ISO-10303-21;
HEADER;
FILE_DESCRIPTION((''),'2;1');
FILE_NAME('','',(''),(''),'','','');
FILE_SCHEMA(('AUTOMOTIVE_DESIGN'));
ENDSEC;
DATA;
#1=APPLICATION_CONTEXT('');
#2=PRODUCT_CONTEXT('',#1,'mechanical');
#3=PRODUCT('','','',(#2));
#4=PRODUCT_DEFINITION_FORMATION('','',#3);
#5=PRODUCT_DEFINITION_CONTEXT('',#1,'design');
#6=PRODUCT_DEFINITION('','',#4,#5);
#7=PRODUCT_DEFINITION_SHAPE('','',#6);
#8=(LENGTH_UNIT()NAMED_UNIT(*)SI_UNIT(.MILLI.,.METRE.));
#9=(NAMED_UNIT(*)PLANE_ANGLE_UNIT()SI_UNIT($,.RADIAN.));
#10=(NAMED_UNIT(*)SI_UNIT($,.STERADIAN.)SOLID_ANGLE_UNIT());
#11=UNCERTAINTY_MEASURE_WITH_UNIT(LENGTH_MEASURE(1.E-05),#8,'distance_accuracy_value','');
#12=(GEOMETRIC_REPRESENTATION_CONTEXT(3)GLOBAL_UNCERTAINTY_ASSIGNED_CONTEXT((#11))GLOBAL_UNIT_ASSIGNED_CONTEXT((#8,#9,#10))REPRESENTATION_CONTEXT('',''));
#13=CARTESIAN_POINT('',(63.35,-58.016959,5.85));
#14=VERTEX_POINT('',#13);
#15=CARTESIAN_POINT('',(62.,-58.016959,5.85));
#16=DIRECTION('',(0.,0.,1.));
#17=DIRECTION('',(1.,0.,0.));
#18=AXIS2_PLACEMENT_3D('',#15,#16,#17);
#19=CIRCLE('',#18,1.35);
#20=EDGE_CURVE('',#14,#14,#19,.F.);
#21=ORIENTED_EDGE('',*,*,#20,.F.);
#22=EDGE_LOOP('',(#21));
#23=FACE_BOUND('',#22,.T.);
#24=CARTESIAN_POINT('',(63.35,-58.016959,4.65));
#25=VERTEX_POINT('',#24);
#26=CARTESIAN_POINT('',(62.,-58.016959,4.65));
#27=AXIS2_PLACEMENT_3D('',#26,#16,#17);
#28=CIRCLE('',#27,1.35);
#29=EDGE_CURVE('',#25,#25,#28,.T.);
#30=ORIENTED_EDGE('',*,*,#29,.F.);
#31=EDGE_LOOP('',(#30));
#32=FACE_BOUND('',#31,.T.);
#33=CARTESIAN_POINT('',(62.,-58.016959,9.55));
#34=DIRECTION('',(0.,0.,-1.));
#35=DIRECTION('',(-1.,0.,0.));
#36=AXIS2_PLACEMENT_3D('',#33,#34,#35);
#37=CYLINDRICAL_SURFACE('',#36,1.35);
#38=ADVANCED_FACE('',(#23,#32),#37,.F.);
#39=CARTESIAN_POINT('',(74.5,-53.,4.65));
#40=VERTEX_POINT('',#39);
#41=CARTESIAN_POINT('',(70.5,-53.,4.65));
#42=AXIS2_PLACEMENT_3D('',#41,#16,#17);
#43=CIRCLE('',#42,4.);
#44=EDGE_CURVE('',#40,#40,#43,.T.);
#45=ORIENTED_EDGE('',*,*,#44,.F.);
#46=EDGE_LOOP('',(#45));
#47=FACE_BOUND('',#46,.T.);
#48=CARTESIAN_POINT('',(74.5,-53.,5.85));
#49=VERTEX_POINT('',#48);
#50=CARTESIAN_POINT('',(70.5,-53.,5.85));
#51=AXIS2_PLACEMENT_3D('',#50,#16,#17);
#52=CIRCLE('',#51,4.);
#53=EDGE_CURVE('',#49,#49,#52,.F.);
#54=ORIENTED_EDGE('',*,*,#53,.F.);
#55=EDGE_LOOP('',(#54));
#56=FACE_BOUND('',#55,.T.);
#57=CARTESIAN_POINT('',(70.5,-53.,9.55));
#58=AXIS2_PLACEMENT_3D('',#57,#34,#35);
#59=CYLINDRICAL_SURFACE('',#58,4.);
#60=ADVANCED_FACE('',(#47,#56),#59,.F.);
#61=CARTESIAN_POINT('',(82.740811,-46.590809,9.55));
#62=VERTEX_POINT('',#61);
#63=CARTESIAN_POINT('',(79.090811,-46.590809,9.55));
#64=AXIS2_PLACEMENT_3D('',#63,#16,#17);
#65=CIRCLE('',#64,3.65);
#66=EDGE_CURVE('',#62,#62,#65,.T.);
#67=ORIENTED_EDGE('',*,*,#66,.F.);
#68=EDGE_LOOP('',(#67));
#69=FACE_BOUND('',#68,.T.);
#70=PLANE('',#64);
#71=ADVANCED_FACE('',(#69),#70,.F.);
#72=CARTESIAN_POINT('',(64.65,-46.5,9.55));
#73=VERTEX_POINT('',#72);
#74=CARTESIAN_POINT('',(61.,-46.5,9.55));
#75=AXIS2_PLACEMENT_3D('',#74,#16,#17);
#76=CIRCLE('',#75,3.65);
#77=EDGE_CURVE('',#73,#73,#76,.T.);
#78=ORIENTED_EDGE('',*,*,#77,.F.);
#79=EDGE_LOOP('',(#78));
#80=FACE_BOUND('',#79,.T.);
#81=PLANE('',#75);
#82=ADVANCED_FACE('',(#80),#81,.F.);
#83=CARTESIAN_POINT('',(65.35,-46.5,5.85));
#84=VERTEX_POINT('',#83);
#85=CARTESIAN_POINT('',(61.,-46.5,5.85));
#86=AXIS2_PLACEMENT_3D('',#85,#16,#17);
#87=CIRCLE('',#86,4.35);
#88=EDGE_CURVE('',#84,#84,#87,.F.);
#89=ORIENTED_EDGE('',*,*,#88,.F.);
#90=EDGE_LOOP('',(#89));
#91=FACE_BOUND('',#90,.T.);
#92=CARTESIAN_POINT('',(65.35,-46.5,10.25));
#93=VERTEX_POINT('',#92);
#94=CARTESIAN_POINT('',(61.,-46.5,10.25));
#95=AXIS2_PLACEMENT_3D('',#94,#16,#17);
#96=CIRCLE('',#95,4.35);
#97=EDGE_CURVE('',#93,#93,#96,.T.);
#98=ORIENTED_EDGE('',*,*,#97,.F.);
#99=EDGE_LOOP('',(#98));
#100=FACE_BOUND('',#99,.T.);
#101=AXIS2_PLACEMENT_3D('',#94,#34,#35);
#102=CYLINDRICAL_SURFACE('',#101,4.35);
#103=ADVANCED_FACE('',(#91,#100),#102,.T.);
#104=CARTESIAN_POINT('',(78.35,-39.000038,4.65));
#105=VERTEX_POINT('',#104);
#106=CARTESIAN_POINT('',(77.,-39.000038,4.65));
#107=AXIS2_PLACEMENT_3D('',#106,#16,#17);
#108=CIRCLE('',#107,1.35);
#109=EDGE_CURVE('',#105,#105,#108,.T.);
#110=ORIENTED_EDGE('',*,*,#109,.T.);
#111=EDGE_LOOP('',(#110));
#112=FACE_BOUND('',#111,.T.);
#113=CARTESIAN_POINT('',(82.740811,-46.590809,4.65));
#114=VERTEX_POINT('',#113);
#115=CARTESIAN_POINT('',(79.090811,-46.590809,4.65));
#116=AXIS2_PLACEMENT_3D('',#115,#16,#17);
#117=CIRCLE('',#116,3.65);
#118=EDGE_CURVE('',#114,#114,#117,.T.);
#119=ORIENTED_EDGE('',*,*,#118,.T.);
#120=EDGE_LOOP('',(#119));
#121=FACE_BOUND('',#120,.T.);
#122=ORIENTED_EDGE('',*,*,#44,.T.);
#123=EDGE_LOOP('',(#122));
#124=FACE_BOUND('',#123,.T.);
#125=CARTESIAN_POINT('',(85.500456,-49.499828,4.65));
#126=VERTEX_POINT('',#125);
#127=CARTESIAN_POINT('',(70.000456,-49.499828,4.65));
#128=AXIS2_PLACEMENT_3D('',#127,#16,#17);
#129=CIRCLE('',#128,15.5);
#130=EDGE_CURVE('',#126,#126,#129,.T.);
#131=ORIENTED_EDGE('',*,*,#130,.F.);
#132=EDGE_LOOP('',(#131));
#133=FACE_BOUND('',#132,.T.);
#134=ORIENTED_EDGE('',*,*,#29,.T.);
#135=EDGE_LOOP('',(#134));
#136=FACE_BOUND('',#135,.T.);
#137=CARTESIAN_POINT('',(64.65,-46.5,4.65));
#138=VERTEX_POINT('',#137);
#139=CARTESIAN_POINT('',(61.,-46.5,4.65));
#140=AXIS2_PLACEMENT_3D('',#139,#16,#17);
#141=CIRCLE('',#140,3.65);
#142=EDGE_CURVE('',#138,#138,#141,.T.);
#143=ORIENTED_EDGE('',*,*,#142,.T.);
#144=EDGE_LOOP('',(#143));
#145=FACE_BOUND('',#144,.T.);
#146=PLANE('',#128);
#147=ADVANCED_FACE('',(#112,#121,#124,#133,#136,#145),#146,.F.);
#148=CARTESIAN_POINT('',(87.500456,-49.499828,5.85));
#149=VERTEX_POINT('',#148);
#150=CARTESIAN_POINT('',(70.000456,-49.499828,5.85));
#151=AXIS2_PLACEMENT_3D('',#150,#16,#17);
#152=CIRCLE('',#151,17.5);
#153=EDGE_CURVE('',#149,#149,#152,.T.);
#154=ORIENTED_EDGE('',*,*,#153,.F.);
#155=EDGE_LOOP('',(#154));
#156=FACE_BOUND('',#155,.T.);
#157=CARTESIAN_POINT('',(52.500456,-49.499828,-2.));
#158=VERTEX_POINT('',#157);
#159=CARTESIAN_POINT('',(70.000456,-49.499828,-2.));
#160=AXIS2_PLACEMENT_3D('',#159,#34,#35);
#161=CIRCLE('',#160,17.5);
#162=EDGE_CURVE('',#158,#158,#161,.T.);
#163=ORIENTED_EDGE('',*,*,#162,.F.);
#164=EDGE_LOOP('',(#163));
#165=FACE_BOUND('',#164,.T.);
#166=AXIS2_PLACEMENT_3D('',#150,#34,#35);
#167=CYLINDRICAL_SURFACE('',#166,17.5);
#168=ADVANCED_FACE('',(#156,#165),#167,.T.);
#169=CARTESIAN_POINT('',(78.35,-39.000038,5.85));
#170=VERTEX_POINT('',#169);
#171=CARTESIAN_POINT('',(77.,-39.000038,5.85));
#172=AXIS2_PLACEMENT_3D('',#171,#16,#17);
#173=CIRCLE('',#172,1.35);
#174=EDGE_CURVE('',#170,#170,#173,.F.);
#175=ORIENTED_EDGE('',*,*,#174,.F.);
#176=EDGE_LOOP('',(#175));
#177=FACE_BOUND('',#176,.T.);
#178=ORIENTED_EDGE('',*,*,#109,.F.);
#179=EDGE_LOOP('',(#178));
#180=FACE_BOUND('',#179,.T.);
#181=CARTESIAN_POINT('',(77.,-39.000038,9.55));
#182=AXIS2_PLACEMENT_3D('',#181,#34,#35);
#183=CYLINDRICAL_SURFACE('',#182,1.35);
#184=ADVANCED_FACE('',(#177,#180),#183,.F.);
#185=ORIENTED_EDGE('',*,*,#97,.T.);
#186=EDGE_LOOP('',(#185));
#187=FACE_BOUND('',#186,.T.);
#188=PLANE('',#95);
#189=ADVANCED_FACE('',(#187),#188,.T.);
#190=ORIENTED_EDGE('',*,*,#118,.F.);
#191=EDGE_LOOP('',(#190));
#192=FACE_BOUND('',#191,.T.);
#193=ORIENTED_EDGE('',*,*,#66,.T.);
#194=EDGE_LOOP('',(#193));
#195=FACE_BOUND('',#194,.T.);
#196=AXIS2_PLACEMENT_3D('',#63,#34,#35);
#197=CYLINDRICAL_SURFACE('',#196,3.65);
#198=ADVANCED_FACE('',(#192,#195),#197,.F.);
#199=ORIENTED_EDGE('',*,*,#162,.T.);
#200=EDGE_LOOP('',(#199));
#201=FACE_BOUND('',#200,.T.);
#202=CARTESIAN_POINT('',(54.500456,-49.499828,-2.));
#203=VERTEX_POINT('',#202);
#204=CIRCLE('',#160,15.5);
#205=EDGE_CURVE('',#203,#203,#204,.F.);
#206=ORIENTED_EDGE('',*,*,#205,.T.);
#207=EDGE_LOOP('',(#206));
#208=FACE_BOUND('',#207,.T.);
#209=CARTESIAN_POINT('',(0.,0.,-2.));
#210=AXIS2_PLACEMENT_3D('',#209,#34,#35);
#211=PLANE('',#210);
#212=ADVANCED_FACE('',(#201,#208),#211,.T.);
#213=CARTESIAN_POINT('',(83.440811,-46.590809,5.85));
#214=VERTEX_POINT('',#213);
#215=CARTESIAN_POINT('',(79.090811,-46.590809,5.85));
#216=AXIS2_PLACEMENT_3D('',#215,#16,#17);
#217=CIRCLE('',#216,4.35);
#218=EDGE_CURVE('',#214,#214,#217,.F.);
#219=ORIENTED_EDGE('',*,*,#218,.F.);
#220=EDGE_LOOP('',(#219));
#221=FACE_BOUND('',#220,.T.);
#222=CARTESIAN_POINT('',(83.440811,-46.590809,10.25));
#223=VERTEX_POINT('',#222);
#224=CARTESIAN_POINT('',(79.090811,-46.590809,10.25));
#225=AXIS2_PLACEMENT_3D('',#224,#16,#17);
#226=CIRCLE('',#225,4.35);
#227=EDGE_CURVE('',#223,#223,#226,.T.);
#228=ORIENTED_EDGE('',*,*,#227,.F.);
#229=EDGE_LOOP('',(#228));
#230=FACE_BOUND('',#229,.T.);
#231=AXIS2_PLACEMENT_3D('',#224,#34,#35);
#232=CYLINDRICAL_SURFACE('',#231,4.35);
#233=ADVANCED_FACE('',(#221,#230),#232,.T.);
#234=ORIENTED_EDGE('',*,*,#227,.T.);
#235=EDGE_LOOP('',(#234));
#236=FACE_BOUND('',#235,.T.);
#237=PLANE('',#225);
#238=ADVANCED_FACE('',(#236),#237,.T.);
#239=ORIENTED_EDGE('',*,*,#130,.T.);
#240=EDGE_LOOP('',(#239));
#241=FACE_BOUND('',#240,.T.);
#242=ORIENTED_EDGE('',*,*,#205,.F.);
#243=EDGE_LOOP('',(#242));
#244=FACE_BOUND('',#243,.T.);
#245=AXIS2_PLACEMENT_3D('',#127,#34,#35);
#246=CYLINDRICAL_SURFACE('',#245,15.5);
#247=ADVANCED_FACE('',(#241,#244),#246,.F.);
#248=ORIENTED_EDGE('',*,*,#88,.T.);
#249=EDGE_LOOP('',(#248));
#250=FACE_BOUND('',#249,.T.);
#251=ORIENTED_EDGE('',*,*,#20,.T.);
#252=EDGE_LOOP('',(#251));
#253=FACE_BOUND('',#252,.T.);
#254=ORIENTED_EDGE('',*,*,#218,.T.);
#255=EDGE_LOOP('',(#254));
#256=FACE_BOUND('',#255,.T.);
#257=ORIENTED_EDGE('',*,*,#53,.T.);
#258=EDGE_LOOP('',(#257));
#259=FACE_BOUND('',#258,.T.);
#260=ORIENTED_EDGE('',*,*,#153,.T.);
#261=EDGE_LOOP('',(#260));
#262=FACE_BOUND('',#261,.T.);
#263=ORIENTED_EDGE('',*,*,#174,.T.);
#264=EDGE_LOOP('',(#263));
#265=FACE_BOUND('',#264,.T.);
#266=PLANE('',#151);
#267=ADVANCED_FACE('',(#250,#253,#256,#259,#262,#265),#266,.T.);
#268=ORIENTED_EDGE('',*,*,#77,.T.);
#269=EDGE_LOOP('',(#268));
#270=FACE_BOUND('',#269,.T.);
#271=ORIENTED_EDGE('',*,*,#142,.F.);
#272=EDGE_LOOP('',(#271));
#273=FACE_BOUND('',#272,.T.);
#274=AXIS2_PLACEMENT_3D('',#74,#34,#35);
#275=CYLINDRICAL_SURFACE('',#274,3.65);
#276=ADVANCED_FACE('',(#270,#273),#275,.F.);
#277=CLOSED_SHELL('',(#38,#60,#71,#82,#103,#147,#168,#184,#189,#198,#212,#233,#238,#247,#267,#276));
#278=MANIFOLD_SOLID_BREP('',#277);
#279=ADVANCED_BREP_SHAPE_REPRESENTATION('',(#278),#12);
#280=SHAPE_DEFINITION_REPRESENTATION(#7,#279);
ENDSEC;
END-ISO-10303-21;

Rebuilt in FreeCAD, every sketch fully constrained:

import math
import FreeCAD as App
import Part
import Sketcher
from FreeCAD import Vector
Q = App.Units.Quantity

doc = App.newDocument("Part")
body = doc.addObject("PartDesign::Body", "Body")

# Sketch on XY plane
sketch1 = body.newObject("Sketcher::SketchObject", "Sketch")
sketch1.AttachmentSupport = (doc.getObject("XY_Plane"), [""])
sketch1.MapMode = "FlatFace"
sketch1.addGeometry(Part.Circle(Vector(70, -49, 0), Vector(0, 0, 1), 18), False)
sketch1.addConstraint([
    Sketcher.Constraint("Diameter", 0, Q("35 mm")),
    Sketcher.Constraint("DistanceX", -1, 1, 0, 3, Q("70.000456 mm")),
    Sketcher.Constraint("DistanceY", 0, 3, -1, 1, Q("49.499828 mm")),
])
pad1 = body.newObject("PartDesign::Pad", "Pad")
pad1.Profile = sketch1
pad1.Length = 5.85

# Sketch on XY plane
sketch2 = body.newObject("Sketcher::SketchObject", "Sketch001")
sketch2.AttachmentSupport = (doc.getObject("XY_Plane"), [""])
sketch2.MapMode = "FlatFace"
sketch2.addGeometry([
    Part.Circle(Vector(79.1, -46.6, 0), Vector(0, 0, 1), 4.3),
    Part.Circle(Vector(61, -46.5, 0), Vector(0, 0, 1), 4.3),
], False)
sketch2.addConstraint([
    Sketcher.Constraint("Equal", 0, 1),
    Sketcher.Constraint("Diameter", 0, Q("8.7 mm")),
    Sketcher.Constraint("DistanceX", -1, 1, 1, 3, Q("61 mm")),
    Sketcher.Constraint("DistanceY", 1, 3, -1, 1, Q("46.5 mm")),
    Sketcher.Constraint("DistanceX", -1, 1, 0, 3, Q("79.090811 mm")),
    Sketcher.Constraint("DistanceY", 0, 3, -1, 1, Q("46.590809 mm")),
])
pad2 = body.newObject("PartDesign::Pad", "Pad001")
pad2.Profile = sketch2
pad2.Length = 10.25

# Sketch on XY plane
sketch3 = body.newObject("Sketcher::SketchObject", "Sketch002")
sketch3.AttachmentSupport = (doc.getObject("XY_Plane"), [""])
sketch3.MapMode = "FlatFace"
sketch3.addGeometry([
    Part.Circle(Vector(70.5, -53, 0), Vector(0, 0, 1), 4),  # 0
    Part.Circle(Vector(77, -39, 0), Vector(0, 0, 1), 1.4),  # 1
    Part.Circle(Vector(62, -58, 0), Vector(0, 0, 1), 1.4),  # 2
    Part.Circle(Vector(79.1, -46.6, 0), Vector(0, 0, 1), 3.6),  # 3
    Part.Circle(Vector(61, -46.5, 0), Vector(0, 0, 1), 3.6),  # 4
], False)
sketch3.addConstraint([
    Sketcher.Constraint("Equal", 1, 2),
    Sketcher.Constraint("Equal", 3, 4),
    Sketcher.Constraint("Diameter", 0, Q("8 mm")),
    Sketcher.Constraint("Diameter", 1, Q("2.7 mm")),
    Sketcher.Constraint("Diameter", 3, Q("7.3 mm")),
    Sketcher.Constraint("DistanceY", 0, 3, -1, 1, Q("53 mm")),
    Sketcher.Constraint("DistanceX", -1, 1, 1, 3, Q("77 mm")),
    Sketcher.Constraint("DistanceX", -1, 1, 2, 3, Q("62 mm")),
    Sketcher.Constraint("DistanceX", -1, 1, 4, 3, Q("61 mm")),
    Sketcher.Constraint("DistanceX", -1, 1, 0, 3, Q("70.5 mm")),
    Sketcher.Constraint("DistanceY", 4, 3, -1, 1, Q("46.5 mm")),
    Sketcher.Constraint("DistanceY", 2, 3, -1, 1, Q("58.016959 mm")),
    Sketcher.Constraint("DistanceX", -1, 1, 3, 3, Q("79.090811 mm")),
    Sketcher.Constraint("DistanceY", 3, 3, -1, 1, Q("46.590809 mm")),
    Sketcher.Constraint("DistanceY", 2, 3, 1, 3, Q("19.016921 mm")),
])
pocket1 = body.newObject("PartDesign::Pocket", "Pocket")
pocket1.Profile = sketch3
pocket1.Length = 9.55
pocket1.Reversed = True

# Sketch on XY plane
sketch4 = body.newObject("Sketcher::SketchObject", "Sketch003")
sketch4.AttachmentSupport = (doc.getObject("XY_Plane"), [""])
sketch4.MapMode = "FlatFace"
sketch4.addGeometry(Part.Circle(Vector(70, -49, 0), Vector(0, 0, 1), 16), False)
sketch4.addConstraint([
    Sketcher.Constraint("Diameter", 0, Q("31 mm")),
    Sketcher.Constraint("DistanceX", -1, 1, 0, 3, Q("70.000456 mm")),
    Sketcher.Constraint("DistanceY", 0, 3, -1, 1, Q("49.499828 mm")),
])
pocket2 = body.newObject("PartDesign::Pocket", "Pocket001")
pocket2.Profile = sketch4
pocket2.Length = 4.65
pocket2.Reversed = True

# Sketch on XY plane
sketch5 = body.newObject("Sketcher::SketchObject", "Sketch004")
sketch5.AttachmentSupport = (doc.getObject("XY_Plane"), [""])
sketch5.MapMode = "FlatFace"
sketch5.addGeometry([
    Part.Circle(Vector(70, -49, 0), Vector(0, 0, 1), 18),
    Part.ArcOfCircle(Part.Circle(Vector(70, -49, 0), Vector(0, 0, 1), 16), math.radians(105), math.radians(360)),
    Part.ArcOfCircle(Part.Circle(Vector(70, -49, 0), Vector(0, 0, 1), 15), math.radians(0), math.radians(75)),
    Part.ArcOfCircle(Part.Circle(Vector(70, -49, 0), Vector(0, 0, 1), 15), math.radians(75), math.radians(105)),
], False)
sketch5.addConstraint([
    Sketcher.Constraint("Tangent", 1, 2, 2, 1),
    Sketcher.Constraint("Tangent", 2, 2, 3, 1),
    Sketcher.Constraint("Tangent", 3, 2, 1, 1),
    Sketcher.Constraint("Coincident", 1, 3, 0, 3),
    Sketcher.Constraint("Horizontal", 3, 3, 1, 2),
    Sketcher.Constraint("Diameter", 0, Q("35 mm")),
    Sketcher.Constraint("Radius", 1, Q("15.5 mm")),
    Sketcher.Constraint("DistanceX", 3, 2, 2, 2, Q("8 mm")),
    Sketcher.Constraint("DistanceX", -1, 1, 2, 2, Q("74.000019 mm")),
    Sketcher.Constraint("DistanceX", -1, 1, 0, 3, Q("70.000456 mm")),
    Sketcher.Constraint("DistanceY", 0, 3, -1, 1, Q("49.499828 mm")),
])
pad3 = body.newObject("PartDesign::Pad", "Pad002")
pad3.Profile = sketch5
pad3.Length = 2
pad3.Reversed = True

doc.recompute()
